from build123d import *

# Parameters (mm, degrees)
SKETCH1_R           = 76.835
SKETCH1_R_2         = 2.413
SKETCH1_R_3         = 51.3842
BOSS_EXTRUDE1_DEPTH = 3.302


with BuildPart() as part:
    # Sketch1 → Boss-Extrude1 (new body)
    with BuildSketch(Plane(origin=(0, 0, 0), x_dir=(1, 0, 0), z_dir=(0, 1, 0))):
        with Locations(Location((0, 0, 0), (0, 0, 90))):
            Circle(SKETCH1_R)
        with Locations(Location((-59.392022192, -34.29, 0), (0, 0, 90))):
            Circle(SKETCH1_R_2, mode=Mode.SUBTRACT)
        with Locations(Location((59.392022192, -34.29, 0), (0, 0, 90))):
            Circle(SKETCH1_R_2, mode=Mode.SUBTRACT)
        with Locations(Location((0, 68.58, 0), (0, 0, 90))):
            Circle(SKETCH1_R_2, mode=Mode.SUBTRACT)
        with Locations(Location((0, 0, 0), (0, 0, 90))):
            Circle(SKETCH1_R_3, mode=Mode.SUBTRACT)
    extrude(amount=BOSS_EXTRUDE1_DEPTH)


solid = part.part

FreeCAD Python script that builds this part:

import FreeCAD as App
import Part
import Sketcher
Q = App.Units.Quantity

doc = App.newDocument("Part")
body = doc.addObject("PartDesign::Body", "Body")

# Sketch on XZ plane
sketch1 = body.newObject("Sketcher::SketchObject", "Sketch")
sketch1.AttachmentSupport = (doc.getObject("XZ_Plane"), [""])
sketch1.MapMode = "FlatFace"
sketch1.addGeometry(Part.Circle(App.Vector(0, 0, 0), App.Vector(0, 0, 1), 76.8), False)
sketch1.addGeometry(Part.Circle(App.Vector(59.4, 34.3, 0), App.Vector(0, 0, 1), 2.4), False)
sketch1.addGeometry(Part.Circle(App.Vector(0, 0, 0), App.Vector(0, 0, 1), 51.4), False)
sketch1.addGeometry(Part.Circle(App.Vector(-59.4, 34.3, 0), App.Vector(0, 0, 1), 2.4), False)
sketch1.addGeometry(Part.Circle(App.Vector(0, -68.6, 0), App.Vector(0, 0, 1), 2.4), False)
sketch1.addConstraint(Sketcher.Constraint("Coincident", 0, 3, -1, 1))
sketch1.addConstraint(Sketcher.Constraint("Coincident", 2, 3, -1, 1))
sketch1.addConstraint(Sketcher.Constraint("Equal", 1, 3))
sketch1.addConstraint(Sketcher.Constraint("Equal", 3, 4))
sketch1.addConstraint(Sketcher.Constraint("Symmetric", 1, 3, 3, 3, -2))
sketch1.addConstraint(Sketcher.Constraint("PointOnObject", 4, 3, -2))
sketch1.addConstraint(Sketcher.Constraint("Diameter", 0, Q("6.05 in")))
sketch1.addConstraint(Sketcher.Constraint("Diameter", 1, Q("0.19 in")))
sketch1.addConstraint(Sketcher.Constraint("Diameter", 2, Q("4.046 in")))
sketch1.addConstraint(Sketcher.Constraint("DistanceY", 4, 3, -1, 1, Q("2.7 in")))
sketch1.addConstraint(Sketcher.Constraint("DistanceY", -1, 1, 1, 3, Q("1.35 in")))
sketch1.addConstraint(Sketcher.Constraint("DistanceX", -1, 1, 1, 3, Q("59.392022 mm")))
pad1 = body.newObject("PartDesign::Pad", "Pad")
pad1.Profile = sketch1
pad1.Length = Q("0.13 in")
pad1.Reversed = True

doc.recompute()
